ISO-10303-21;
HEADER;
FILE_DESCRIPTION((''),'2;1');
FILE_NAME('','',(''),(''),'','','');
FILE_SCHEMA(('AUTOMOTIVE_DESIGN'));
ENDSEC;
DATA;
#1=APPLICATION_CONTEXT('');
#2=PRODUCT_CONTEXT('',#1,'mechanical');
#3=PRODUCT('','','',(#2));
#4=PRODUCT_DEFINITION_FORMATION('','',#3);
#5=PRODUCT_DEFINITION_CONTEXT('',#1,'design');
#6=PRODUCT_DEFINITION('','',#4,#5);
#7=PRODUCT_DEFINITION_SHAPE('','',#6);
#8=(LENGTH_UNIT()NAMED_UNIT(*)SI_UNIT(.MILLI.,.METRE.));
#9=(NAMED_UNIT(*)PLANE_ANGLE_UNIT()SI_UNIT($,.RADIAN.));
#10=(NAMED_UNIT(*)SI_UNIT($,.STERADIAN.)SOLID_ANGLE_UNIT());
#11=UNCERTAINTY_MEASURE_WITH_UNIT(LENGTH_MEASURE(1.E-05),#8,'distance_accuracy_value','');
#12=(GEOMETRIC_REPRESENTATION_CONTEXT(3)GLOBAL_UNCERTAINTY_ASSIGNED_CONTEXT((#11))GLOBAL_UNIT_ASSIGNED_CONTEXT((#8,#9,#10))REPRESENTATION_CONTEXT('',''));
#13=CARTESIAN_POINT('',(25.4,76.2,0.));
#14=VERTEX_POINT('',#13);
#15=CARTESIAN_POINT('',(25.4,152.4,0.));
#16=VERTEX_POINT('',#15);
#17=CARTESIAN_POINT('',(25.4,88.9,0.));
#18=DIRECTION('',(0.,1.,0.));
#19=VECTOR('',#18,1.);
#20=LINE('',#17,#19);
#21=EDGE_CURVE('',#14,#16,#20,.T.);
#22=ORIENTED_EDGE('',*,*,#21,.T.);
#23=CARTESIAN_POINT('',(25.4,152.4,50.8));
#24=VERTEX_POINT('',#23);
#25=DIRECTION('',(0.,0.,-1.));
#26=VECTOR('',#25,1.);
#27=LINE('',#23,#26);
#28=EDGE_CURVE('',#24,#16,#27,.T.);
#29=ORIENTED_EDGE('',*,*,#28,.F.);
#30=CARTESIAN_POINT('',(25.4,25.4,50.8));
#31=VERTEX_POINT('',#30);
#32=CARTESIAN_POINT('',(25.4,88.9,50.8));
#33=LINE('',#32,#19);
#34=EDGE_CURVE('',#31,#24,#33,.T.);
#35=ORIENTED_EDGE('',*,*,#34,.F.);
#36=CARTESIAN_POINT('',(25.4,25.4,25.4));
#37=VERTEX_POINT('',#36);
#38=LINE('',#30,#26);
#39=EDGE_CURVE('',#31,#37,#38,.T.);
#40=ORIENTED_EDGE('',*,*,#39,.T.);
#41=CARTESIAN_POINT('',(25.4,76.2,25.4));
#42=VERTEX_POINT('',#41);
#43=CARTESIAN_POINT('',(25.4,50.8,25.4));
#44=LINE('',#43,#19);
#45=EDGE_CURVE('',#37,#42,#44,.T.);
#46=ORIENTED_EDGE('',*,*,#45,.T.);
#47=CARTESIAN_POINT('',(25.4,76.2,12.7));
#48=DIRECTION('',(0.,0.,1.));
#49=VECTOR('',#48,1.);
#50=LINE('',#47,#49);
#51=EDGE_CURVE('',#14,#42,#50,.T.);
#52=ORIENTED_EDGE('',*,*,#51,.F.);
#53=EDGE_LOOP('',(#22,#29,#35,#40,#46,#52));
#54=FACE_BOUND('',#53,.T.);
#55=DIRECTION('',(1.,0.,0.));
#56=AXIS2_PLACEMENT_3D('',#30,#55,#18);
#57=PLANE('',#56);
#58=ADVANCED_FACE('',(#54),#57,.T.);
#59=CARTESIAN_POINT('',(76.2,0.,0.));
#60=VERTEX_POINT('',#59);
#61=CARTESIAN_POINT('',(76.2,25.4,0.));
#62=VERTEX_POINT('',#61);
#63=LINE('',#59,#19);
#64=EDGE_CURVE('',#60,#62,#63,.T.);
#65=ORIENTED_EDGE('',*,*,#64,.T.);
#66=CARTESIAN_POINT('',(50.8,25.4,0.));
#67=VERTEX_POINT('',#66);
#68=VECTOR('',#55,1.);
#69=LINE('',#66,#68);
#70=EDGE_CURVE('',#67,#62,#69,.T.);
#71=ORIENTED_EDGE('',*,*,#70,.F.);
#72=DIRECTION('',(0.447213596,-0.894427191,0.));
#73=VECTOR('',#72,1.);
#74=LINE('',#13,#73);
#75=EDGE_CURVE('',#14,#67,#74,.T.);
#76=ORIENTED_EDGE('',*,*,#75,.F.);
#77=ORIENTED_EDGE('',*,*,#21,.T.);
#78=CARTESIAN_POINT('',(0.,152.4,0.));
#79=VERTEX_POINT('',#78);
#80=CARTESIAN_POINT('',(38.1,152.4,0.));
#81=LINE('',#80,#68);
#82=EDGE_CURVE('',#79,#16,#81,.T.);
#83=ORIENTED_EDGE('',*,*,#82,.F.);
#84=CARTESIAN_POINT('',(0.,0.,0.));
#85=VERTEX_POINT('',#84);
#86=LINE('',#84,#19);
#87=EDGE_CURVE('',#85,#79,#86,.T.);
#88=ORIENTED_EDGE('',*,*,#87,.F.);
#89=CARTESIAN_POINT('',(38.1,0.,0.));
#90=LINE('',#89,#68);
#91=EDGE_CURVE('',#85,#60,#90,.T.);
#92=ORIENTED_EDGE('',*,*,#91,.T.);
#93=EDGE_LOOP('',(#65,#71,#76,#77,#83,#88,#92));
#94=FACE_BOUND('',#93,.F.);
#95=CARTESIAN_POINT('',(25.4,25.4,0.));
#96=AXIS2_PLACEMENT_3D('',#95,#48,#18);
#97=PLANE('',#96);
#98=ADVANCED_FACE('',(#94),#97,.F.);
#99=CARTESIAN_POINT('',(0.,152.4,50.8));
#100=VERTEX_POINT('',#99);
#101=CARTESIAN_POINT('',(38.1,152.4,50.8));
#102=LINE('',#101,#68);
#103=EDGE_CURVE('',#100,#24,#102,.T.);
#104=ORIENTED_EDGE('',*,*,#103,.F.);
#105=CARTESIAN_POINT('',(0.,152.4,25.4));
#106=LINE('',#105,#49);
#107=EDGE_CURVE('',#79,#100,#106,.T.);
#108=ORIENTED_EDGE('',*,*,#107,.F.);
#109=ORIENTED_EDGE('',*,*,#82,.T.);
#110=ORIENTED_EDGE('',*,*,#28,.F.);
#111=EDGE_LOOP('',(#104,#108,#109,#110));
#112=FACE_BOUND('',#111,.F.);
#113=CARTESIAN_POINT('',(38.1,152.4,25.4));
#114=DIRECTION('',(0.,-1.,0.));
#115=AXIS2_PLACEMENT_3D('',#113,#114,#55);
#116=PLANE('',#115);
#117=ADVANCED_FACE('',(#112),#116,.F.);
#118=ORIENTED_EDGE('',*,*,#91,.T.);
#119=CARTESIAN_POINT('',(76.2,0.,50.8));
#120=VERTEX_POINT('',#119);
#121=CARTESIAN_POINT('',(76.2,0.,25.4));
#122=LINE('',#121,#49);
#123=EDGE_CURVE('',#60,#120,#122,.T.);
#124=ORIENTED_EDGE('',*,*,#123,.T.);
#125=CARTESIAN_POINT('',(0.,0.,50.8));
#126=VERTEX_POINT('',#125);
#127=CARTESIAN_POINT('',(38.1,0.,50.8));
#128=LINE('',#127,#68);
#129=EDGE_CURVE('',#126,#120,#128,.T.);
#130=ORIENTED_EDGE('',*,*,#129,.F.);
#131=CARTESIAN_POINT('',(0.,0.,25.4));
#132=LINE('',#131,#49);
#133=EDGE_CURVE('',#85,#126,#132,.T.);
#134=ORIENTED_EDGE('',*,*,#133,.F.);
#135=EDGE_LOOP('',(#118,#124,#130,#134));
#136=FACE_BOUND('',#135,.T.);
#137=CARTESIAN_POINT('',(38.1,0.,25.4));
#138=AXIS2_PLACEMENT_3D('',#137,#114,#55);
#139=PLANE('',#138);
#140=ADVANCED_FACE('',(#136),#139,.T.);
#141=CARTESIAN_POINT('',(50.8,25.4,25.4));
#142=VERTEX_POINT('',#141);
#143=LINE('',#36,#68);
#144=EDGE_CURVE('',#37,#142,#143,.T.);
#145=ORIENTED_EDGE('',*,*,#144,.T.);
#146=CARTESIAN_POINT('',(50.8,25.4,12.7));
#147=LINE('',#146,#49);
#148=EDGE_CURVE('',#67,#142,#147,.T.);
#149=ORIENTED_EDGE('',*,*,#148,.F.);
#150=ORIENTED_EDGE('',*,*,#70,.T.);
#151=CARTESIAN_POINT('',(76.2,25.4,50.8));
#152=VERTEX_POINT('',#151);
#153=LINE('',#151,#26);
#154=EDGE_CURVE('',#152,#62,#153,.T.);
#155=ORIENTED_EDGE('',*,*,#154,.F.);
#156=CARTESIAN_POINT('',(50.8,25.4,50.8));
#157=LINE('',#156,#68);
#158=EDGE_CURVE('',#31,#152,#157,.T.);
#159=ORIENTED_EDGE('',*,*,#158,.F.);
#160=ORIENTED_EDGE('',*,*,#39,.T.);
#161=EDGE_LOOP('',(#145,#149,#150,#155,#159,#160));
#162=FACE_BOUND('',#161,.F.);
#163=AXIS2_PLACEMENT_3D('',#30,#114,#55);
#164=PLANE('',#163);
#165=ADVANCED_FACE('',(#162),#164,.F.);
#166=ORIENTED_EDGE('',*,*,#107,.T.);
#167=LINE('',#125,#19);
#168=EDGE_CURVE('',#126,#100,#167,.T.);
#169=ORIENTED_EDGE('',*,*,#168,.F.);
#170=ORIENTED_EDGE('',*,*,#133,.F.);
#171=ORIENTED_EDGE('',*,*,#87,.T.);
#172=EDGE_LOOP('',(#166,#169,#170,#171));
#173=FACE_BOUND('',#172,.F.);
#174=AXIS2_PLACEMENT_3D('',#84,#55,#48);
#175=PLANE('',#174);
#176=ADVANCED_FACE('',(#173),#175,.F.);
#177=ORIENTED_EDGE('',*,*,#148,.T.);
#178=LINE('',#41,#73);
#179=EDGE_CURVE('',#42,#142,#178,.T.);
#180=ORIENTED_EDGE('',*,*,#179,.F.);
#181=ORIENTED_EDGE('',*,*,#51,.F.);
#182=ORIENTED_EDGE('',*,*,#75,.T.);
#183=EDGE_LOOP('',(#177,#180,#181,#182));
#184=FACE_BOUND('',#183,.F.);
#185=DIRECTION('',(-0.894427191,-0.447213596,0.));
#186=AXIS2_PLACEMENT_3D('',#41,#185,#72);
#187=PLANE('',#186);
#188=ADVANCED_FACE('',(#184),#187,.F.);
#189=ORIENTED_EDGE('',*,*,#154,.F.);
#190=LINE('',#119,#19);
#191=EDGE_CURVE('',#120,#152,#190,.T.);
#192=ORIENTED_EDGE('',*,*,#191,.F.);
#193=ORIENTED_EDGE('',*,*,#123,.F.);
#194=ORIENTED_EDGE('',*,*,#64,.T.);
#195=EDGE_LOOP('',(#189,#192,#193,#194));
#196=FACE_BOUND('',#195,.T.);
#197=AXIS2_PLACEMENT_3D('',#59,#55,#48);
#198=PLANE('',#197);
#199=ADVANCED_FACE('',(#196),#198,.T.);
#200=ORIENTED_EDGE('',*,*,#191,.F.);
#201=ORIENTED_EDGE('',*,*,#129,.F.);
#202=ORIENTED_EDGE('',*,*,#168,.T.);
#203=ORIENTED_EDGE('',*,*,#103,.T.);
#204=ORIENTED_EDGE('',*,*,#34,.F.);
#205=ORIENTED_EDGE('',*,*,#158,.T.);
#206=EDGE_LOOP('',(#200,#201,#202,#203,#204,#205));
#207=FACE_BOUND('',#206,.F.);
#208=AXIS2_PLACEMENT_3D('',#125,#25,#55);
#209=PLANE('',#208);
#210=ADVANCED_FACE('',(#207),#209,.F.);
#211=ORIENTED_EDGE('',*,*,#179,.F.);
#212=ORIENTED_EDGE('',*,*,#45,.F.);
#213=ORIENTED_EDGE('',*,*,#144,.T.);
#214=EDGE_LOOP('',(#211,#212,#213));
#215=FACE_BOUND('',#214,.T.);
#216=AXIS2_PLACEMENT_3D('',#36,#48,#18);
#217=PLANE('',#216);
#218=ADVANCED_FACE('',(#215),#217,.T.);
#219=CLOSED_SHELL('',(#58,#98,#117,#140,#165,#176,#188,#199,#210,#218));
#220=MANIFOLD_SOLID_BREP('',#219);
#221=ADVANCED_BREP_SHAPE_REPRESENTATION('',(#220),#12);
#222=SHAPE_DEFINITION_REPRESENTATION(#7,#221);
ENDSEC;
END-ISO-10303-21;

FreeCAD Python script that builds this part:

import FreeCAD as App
import Part
import Sketcher
Q = App.Units.Quantity

doc = App.newDocument("Part")
params = doc.addObject("Spreadsheet::Sheet", "Params")
for row, (alias, value) in enumerate([
    ("sketch1_width", "3 in"),
    ("sketch1_height", "2 in"),
    ("pad1_length", "6 in"),
    ("sketch2_width", "2 in"),
    ("sketch2_height", "5 in"),
    ("pocket1_length", "2 in"),
    ("sketch3_width", "2 in"),
    ("sketch3_height", "1 in"),
    ("pad2_length", "1 in"),
    ("sketch4_width", "1 in"),
    ("sketch4_height", "2 in"),
    ("pocket2_length", "1 in"),
], start=1):
    params.set(f"A{row}", alias)
    params.set(f"B{row}", "=" + value)
    params.setAlias(f"B{row}", alias)

body = doc.addObject("PartDesign::Body", "Body")

# Sketch on XZ plane
sketch1 = body.newObject("Sketcher::SketchObject", "Sketch")
sketch1.AttachmentSupport = (doc.getObject("XZ_Plane"), [""])
sketch1.MapMode = "FlatFace"
sketch1.addGeometry([
    Part.LineSegment(App.Vector(0, 50.8, 0), App.Vector(0, 0, 0)),
    Part.LineSegment(App.Vector(0, 0, 0), App.Vector(76.2, 0, 0)),
    Part.LineSegment(App.Vector(76.2, 0, 0), App.Vector(76.2, 50.8, 0)),
    Part.LineSegment(App.Vector(76.2, 50.8, 0), App.Vector(0, 50.8, 0)),
], False)
sketch1.addConstraint([
    Sketcher.Constraint("Coincident", 0, 2, 1, 1),
    Sketcher.Constraint("Coincident", 1, 2, 2, 1),
    Sketcher.Constraint("Coincident", 2, 2, 3, 1),
    Sketcher.Constraint("Coincident", 3, 2, 0, 1),
    Sketcher.Constraint("Vertical", 0),
    Sketcher.Constraint("Horizontal", 1),
    Sketcher.Constraint("Vertical", 2),
    Sketcher.Constraint("Horizontal", 3),
    Sketcher.Constraint("Coincident", 0, 2, -1, 1),
    Sketcher.Constraint("DistanceX", 1, 1, 1, 2, Q("3 in")),
    Sketcher.Constraint("DistanceY", 0, 2, 0, 1, Q("2 in")),
])
sketch1.setExpression("Constraints[9]", "Params.sketch1_width")
sketch1.setExpression("Constraints[10]", "Params.sketch1_height")
pad1 = body.newObject("PartDesign::Pad", "Pad")
pad1.Profile = sketch1
pad1.setExpression("Length", "Params.pad1_length")
pad1.Reversed = True

# Sketch on XY plane
sketch2 = body.newObject("Sketcher::SketchObject", "Sketch001")
sketch2.AttachmentSupport = (doc.getObject("XY_Plane"), [""])
sketch2.MapMode = "FlatFace"
sketch2.AttachmentOffset = App.Placement(App.Vector(0, 0, 2 * 25.4), App.Rotation())
sketch2.addGeometry([
    Part.LineSegment(App.Vector(25.4, 152.4, 0), App.Vector(25.4, 25.4, 0)),
    Part.LineSegment(App.Vector(25.4, 25.4, 0), App.Vector(76.2, 25.4, 0)),
    Part.LineSegment(App.Vector(76.2, 25.4, 0), App.Vector(76.2, 152.4, 0)),
    Part.LineSegment(App.Vector(76.2, 152.4, 0), App.Vector(25.4, 152.4, 0)),
], False)
sketch2.addConstraint([
    Sketcher.Constraint("Coincident", 0, 2, 1, 1),
    Sketcher.Constraint("Coincident", 1, 2, 2, 1),
    Sketcher.Constraint("Coincident", 2, 2, 3, 1),
    Sketcher.Constraint("Coincident", 3, 2, 0, 1),
    Sketcher.Constraint("Vertical", 0),
    Sketcher.Constraint("Horizontal", 1),
    Sketcher.Constraint("Vertical", 2),
    Sketcher.Constraint("Horizontal", 3),
    Sketcher.Constraint("DistanceX", 1, 1, 1, 2, Q("2 in")),
    Sketcher.Constraint("DistanceY", 0, 2, 0, 1, Q("5 in")),
    Sketcher.Constraint("DistanceX", -1, 1, 0, 2, Q("1 in")),
    Sketcher.Constraint("DistanceY", -1, 1, 0, 2, Q("1 in")),
])
sketch2.setExpression("Constraints[8]", "Params.sketch2_width")
sketch2.setExpression("Constraints[9]", "Params.sketch2_height")
pocket1 = body.newObject("PartDesign::Pocket", "Pocket")
pocket1.Profile = sketch2
pocket1.setExpression("Length", "Params.pocket1_length")

# Sketch on YZ plane
sketch3 = body.newObject("Sketcher::SketchObject", "Sketch002")
sketch3.AttachmentSupport = (doc.getObject("YZ_Plane"), [""])
sketch3.MapMode = "FlatFace"
sketch3.AttachmentOffset = App.Placement(App.Vector(0, 0, 1 * 25.4), App.Rotation())
sketch3.addGeometry([
    Part.LineSegment(App.Vector(25.4, 25.4, 0), App.Vector(25.4, 0, 0)),
    Part.LineSegment(App.Vector(25.4, 0, 0), App.Vector(76.2, 0, 0)),
    Part.LineSegment(App.Vector(76.2, 0, 0), App.Vector(76.2, 25.4, 0)),
    Part.LineSegment(App.Vector(76.2, 25.4, 0), App.Vector(25.4, 25.4, 0)),
], False)
sketch3.addConstraint([
    Sketcher.Constraint("Coincident", 0, 2, 1, 1),
    Sketcher.Constraint("Coincident", 1, 2, 2, 1),
    Sketcher.Constraint("Coincident", 2, 2, 3, 1),
    Sketcher.Constraint("Coincident", 3, 2, 0, 1),
    Sketcher.Constraint("Vertical", 0),
    Sketcher.Constraint("Horizontal", 1),
    Sketcher.Constraint("Vertical", 2),
    Sketcher.Constraint("Horizontal", 3),
    Sketcher.Constraint("PointOnObject", 0, 2, -1),
    Sketcher.Constraint("DistanceX", 1, 1, 1, 2, Q("2 in")),
    Sketcher.Constraint("DistanceY", 0, 2, 0, 1, Q("1 in")),
    Sketcher.Constraint("DistanceX", -1, 1, 0, 2, Q("1 in")),
])
sketch3.setExpression("Constraints[9]", "Params.sketch3_width")
sketch3.setExpression("Constraints[10]", "Params.sketch3_height")
pad2 = body.newObject("PartDesign::Pad", "Pad001")
pad2.Profile = sketch3
pad2.setExpression("Length", "Params.pad2_length")

# Sketch on XY plane
sketch4 = body.newObject("Sketcher::SketchObject", "Sketch003")
sketch4.AttachmentSupport = (doc.getObject("XY_Plane"), [""])
sketch4.MapMode = "FlatFace"
sketch4.AttachmentOffset = App.Placement(App.Vector(0, 0, 1 * 25.4), App.Rotation())
sketch4.addGeometry([
    Part.LineSegment(App.Vector(50.8, 76.2, 0), App.Vector(25.4, 76.2, 0)),
    Part.LineSegment(App.Vector(25.4, 76.2, 0), App.Vector(50.8, 25.4, 0)),
    Part.LineSegment(App.Vector(50.8, 25.4, 0), App.Vector(50.8, 76.2, 0)),
], False)
sketch4.addConstraint([
    Sketcher.Constraint("Coincident", 0, 2, 1, 1),
    Sketcher.Constraint("Coincident", 1, 2, 2, 1),
    Sketcher.Constraint("Coincident", 2, 2, 0, 1),
    Sketcher.Constraint("Horizontal", 0),
    Sketcher.Constraint("Vertical", 2),
    Sketcher.Constraint("DistanceX", 0, 2, 0, 1, Q("1 in")),
    Sketcher.Constraint("DistanceY", 2, 1, 2, 2, Q("2 in")),
    Sketcher.Constraint("DistanceX", -1, 1, 0, 2, Q("1 in")),
    Sketcher.Constraint("DistanceY", -1, 1, 0, 2, Q("3 in")),
])
sketch4.setExpression("Constraints[5]", "Params.sketch4_width")
sketch4.setExpression("Constraints[6]", "Params.sketch4_height")
pocket2 = body.newObject("PartDesign::Pocket", "Pocket001")
pocket2.Profile = sketch4
pocket2.setExpression("Length", "Params.pocket2_length")

doc.recompute()
